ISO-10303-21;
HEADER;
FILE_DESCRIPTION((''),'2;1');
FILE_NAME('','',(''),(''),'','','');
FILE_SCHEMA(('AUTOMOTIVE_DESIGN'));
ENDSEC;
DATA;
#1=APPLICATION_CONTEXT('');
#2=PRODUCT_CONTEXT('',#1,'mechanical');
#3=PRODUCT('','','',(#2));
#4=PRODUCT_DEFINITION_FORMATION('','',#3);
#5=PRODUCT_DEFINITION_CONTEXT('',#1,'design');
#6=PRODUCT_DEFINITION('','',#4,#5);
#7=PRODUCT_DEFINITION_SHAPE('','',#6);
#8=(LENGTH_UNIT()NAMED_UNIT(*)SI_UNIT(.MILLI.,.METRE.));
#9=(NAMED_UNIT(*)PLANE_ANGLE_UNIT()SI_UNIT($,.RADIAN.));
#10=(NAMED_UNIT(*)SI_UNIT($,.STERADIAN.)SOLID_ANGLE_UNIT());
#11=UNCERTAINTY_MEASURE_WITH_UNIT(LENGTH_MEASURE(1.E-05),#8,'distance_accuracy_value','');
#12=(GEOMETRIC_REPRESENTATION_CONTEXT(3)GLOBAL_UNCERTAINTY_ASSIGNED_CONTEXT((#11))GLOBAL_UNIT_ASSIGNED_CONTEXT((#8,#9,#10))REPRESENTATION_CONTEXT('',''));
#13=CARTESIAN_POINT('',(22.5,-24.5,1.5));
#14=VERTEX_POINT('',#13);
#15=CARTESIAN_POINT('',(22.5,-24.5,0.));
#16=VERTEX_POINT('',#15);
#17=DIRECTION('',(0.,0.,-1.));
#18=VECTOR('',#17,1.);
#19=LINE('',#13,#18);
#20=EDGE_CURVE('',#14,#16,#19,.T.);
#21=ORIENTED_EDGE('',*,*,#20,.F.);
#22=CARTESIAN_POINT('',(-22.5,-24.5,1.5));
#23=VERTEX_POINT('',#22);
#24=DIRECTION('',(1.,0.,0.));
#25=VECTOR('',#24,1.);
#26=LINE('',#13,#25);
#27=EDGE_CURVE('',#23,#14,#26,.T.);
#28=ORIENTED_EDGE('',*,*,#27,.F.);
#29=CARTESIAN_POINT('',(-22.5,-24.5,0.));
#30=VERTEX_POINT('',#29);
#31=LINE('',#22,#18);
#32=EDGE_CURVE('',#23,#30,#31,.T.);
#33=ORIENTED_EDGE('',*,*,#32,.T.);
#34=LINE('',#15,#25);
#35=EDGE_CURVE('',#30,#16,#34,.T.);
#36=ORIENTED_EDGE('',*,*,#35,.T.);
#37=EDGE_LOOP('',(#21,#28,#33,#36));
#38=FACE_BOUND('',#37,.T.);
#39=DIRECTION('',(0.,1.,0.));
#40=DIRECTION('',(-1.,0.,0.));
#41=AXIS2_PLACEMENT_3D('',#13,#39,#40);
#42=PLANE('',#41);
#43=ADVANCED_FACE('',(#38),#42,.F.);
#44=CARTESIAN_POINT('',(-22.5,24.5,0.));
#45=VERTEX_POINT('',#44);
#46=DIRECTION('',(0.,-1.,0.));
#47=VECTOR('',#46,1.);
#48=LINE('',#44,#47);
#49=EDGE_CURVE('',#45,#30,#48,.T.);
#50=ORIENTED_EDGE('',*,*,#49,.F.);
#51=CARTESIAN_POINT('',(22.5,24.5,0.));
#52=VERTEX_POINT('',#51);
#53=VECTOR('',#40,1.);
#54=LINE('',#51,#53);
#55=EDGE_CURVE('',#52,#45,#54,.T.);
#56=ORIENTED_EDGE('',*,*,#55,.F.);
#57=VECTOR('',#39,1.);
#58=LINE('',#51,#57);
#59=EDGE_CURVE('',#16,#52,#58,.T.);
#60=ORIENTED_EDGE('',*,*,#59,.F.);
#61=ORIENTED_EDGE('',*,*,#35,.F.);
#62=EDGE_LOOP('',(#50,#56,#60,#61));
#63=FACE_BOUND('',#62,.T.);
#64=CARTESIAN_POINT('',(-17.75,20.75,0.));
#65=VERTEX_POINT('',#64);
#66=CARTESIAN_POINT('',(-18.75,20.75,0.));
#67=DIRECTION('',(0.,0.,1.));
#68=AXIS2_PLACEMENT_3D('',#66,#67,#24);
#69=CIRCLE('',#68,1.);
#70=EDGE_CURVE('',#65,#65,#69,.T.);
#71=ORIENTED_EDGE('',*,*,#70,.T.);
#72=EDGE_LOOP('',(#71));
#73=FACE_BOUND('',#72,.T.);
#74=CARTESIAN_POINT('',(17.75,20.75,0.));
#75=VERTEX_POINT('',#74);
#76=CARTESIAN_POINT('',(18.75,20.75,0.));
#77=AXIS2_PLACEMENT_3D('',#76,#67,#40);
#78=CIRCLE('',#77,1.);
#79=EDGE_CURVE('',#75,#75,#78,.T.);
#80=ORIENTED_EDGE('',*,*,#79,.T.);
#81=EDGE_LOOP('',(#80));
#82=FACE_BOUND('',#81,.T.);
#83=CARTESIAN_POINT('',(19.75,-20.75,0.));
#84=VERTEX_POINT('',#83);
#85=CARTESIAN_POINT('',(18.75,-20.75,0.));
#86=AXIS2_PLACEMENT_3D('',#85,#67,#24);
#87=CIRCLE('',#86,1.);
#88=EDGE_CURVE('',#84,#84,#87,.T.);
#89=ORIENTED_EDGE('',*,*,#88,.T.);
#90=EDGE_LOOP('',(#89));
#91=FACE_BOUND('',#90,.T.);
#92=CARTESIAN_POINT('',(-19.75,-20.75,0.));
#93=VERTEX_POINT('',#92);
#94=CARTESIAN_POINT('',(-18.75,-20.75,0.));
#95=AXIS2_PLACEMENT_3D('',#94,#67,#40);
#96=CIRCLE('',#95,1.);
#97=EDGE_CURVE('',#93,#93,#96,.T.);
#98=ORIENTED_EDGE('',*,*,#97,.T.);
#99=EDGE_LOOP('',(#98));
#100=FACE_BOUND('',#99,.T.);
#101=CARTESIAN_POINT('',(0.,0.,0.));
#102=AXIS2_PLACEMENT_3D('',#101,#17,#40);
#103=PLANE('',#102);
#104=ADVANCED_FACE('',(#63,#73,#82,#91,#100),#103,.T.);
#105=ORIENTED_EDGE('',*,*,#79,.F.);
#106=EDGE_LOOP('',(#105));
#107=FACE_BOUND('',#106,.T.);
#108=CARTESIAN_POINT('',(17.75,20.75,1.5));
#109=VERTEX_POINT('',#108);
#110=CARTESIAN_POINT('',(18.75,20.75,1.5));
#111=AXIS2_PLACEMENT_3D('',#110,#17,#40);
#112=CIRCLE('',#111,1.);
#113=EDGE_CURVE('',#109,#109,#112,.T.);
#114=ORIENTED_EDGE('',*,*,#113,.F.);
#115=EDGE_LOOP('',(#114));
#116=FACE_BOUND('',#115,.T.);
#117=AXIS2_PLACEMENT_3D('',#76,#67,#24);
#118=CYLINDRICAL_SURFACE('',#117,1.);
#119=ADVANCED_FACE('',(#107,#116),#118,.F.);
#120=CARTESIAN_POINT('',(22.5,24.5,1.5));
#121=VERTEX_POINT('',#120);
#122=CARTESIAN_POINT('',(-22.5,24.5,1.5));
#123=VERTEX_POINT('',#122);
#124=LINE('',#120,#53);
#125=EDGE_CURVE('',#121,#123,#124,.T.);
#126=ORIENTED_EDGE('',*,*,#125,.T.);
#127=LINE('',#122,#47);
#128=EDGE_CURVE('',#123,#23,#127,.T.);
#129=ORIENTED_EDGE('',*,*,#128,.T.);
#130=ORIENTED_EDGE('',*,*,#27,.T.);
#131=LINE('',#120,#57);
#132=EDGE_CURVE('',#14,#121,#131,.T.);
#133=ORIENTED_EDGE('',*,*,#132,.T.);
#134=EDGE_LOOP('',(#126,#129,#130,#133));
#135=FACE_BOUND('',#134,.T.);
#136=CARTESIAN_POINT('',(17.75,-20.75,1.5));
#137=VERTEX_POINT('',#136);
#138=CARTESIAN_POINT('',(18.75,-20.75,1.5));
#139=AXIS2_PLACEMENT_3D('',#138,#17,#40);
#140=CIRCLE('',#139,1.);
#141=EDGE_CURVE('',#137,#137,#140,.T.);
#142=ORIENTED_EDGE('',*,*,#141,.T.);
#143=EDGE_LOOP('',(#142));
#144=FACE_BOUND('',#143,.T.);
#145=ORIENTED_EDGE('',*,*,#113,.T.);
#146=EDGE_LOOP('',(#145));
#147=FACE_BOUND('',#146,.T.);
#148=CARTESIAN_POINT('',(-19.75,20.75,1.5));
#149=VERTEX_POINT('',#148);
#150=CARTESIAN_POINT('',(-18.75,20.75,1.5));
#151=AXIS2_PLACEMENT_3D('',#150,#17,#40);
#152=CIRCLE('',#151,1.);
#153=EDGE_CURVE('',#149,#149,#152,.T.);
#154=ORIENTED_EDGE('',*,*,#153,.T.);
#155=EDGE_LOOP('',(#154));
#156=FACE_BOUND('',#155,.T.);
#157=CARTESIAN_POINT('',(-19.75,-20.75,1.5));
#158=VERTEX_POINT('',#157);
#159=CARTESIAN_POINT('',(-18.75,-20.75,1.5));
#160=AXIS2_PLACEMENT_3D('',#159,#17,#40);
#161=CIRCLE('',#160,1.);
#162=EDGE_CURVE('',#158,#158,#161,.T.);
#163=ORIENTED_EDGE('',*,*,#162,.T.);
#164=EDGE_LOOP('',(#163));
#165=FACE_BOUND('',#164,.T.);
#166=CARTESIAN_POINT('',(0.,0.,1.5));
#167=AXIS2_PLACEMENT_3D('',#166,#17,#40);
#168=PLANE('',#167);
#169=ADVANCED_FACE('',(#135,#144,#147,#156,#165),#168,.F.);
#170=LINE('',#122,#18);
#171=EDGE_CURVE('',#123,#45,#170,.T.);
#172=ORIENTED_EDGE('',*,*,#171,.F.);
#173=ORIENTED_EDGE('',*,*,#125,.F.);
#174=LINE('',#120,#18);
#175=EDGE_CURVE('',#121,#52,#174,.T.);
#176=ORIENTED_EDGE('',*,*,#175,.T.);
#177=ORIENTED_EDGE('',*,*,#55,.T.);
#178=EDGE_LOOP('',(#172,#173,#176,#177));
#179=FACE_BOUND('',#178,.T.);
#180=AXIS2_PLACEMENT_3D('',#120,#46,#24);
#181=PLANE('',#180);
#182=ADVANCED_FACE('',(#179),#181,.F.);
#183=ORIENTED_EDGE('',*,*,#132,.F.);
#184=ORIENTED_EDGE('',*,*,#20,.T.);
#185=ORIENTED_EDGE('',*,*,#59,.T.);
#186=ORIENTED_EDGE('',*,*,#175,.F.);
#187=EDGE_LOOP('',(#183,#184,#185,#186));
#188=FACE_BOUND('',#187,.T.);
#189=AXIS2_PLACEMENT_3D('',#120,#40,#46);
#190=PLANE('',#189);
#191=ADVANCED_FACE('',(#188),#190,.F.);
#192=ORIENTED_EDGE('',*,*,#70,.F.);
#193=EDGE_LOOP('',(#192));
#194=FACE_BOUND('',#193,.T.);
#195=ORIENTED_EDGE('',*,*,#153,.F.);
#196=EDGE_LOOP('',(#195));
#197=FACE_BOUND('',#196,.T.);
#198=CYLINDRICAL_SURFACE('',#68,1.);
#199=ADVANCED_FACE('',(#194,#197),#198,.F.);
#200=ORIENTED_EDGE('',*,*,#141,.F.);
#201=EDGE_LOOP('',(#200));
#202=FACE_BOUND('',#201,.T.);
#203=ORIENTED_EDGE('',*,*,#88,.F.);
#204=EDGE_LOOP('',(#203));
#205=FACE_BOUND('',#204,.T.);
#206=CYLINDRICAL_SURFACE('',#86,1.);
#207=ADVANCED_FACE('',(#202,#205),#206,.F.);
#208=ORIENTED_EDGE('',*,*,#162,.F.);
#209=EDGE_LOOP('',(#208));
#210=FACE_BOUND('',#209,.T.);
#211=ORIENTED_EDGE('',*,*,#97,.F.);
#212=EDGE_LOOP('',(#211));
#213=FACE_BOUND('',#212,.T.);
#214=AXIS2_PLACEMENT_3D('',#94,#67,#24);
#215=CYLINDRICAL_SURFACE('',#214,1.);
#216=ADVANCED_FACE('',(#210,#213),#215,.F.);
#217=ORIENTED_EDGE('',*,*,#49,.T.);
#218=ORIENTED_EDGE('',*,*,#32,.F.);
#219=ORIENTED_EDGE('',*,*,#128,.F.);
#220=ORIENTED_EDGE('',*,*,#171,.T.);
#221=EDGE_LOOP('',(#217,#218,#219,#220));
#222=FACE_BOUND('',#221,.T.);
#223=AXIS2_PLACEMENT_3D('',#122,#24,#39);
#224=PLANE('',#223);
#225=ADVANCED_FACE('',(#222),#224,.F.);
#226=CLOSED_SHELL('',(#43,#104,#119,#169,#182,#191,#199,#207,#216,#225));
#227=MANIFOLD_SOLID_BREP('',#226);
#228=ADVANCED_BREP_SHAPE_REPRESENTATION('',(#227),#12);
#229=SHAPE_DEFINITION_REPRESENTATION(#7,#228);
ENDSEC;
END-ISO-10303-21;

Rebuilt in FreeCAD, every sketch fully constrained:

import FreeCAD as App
import Part
import Sketcher

V = App.Vector
Q = App.Units.Quantity

doc = App.newDocument("Part")
body = doc.addObject("PartDesign::Body", "Body")

# Sketch on XY plane
sketch1 = body.newObject("Sketcher::SketchObject", "Sketch")
sketch1.AttachmentSupport = (doc.getObject("XY_Plane"), [""])
sketch1.MapMode = "FlatFace"
sketch1.addGeometry([
    Part.LineSegment(V(-22.5, 24.5, 0), V(-22.5, -24.5, 0)),
    Part.LineSegment(V(-22.5, -24.5, 0), V(22.5, -24.5, 0)),
    Part.LineSegment(V(22.5, -24.5, 0), V(22.5, 24.5, 0)),
    Part.LineSegment(V(22.5, 24.5, 0), V(-22.5, 24.5, 0)),
], False)
sketch1.addConstraint([
    Sketcher.Constraint("Coincident", 0, 2, 1, 1),
    Sketcher.Constraint("Coincident", 1, 2, 2, 1),
    Sketcher.Constraint("Coincident", 2, 2, 3, 1),
    Sketcher.Constraint("Coincident", 3, 2, 0, 1),
    Sketcher.Constraint("Vertical", 0),
    Sketcher.Constraint("Horizontal", 1),
    Sketcher.Constraint("Vertical", 2),
    Sketcher.Constraint("Horizontal", 3),
    Sketcher.Constraint("Symmetric", 0, 2, 2, 2, -1, 1),
    Sketcher.Constraint("DistanceX", 1, 1, 1, 2, Q("45 mm")),
    Sketcher.Constraint("DistanceY", 0, 2, 0, 1, Q("49 mm")),
])
pad1 = body.newObject("PartDesign::Pad", "Pad")
pad1.Profile = sketch1
pad1.Length = 1.5

# Sketch on XY plane
sketch2 = body.newObject("Sketcher::SketchObject", "Sketch001")
sketch2.AttachmentSupport = (doc.getObject("XY_Plane"), [""])
sketch2.MapMode = "FlatFace"
sketch2.AttachmentOffset = App.Placement(V(0, 0, 1.5), App.Rotation())
sketch2.addGeometry([
    Part.Circle(V(-18.75, 20.75, 0), V(0, 0, 1), 1),
    Part.Circle(V(18.75, 20.75, 0), V(0, 0, 1), 1),
    Part.Circle(V(18.75, -20.75, 0), V(0, 0, 1), 1),
    Part.Circle(V(-18.75, -20.75, 0), V(0, 0, 1), 1),
], False)
sketch2.addConstraint([
    Sketcher.Constraint("Equal", 0, 1),
    Sketcher.Constraint("Equal", 1, 2),
    Sketcher.Constraint("Equal", 2, 3),
    Sketcher.Constraint("Symmetric", 0, 3, 2, 3, -1, 1),
    Sketcher.Constraint("Symmetric", 1, 3, 3, 3, -1, 1),
    Sketcher.Constraint("Symmetric", 0, 3, 1, 3, -2),
    Sketcher.Constraint("Diameter", 0, Q("2 mm")),
    Sketcher.Constraint("DistanceX", 0, 3, 1, 3, Q("37.5 mm")),
    Sketcher.Constraint("DistanceY", 2, 3, 1, 3, Q("41.5 mm")),
])
pocket1 = body.newObject("PartDesign::Pocket", "Pocket")
pocket1.Profile = sketch2
pocket1.Type = "ThroughAll"
pocket1.Midplane = True

doc.recompute()
